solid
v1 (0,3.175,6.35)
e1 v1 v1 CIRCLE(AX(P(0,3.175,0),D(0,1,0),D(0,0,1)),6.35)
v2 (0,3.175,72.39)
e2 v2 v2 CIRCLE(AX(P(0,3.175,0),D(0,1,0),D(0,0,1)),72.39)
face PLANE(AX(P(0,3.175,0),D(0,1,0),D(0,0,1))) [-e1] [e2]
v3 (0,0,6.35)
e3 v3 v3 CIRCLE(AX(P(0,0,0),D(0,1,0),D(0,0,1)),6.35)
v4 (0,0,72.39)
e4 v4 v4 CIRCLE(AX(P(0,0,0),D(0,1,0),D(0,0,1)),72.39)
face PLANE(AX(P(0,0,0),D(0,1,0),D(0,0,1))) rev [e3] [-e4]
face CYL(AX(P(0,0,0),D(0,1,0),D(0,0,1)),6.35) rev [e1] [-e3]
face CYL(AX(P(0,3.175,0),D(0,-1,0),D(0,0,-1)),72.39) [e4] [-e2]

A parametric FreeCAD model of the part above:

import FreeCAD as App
import Part
import Sketcher

V = App.Vector
Q = App.Units.Quantity

doc = App.newDocument("Part")
params = doc.addObject("Spreadsheet::Sheet", "Params")
for row, (alias, value) in enumerate([
    ("sketch1_diameter", "5.7 in"),
    ("pad1_length", "0.125 in"),
    ("sketch2_diameter", "0.5 in"),
], start=1):
    params.set(f"A{row}", alias)
    params.set(f"B{row}", "=" + value)
    params.setAlias(f"B{row}", alias)

body = doc.addObject("PartDesign::Body", "Body")

# Sketch on XZ plane
sketch1 = body.newObject("Sketcher::SketchObject", "Sketch")
sketch1.AttachmentSupport = (doc.getObject("XZ_Plane"), [""])
sketch1.MapMode = "FlatFace"
sketch1.addGeometry(Part.Circle(V(0, 0, 0), V(0, 0, 1), 72), False)
sketch1.addConstraint([
    Sketcher.Constraint("Coincident", 0, 3, -1, 1),
    Sketcher.Constraint("Diameter", 0, Q("5.7 in")),
])
sketch1.setExpression("Constraints[1]", "Params.sketch1_diameter")
pad1 = body.newObject("PartDesign::Pad", "Pad")
pad1.Profile = sketch1
pad1.setExpression("Length", "Params.pad1_length")
pad1.Reversed = True

# Sketch on XZ plane
sketch2 = body.newObject("Sketcher::SketchObject", "Sketch001")
sketch2.AttachmentSupport = (doc.getObject("XZ_Plane"), [""])
sketch2.MapMode = "FlatFace"
sketch2.AttachmentOffset = App.Placement(V(0, 0, -0.125 * 25.4), App.Rotation())
sketch2.addGeometry(Part.Circle(V(0, 0, 0), V(0, 0, 1), 6), False)
sketch2.addConstraint([
    Sketcher.Constraint("Coincident", 0, 3, -1, 1),
    Sketcher.Constraint("Diameter", 0, Q("0.5 in")),
])
sketch2.setExpression("Constraints[1]", "Params.sketch2_diameter")
pocket1 = body.newObject("PartDesign::Pocket", "Pocket")
pocket1.Profile = sketch2
pocket1.Type = "ThroughAll"
pocket1.Reversed = True

doc.recompute()
